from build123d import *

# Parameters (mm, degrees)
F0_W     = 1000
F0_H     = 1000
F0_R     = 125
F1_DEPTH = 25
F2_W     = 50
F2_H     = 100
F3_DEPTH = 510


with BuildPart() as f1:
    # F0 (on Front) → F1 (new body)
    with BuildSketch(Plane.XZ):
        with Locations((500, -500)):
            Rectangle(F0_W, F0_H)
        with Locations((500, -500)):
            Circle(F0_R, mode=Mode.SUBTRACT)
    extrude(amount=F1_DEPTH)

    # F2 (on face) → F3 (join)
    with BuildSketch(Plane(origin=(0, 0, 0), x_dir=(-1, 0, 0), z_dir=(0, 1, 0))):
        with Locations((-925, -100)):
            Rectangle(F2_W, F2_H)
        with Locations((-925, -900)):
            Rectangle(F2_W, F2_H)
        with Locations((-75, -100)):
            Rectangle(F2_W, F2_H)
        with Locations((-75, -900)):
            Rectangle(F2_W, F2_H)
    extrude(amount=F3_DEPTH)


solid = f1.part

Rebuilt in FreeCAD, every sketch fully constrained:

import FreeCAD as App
import Part
import Sketcher

V = App.Vector

doc = App.newDocument("Part")
body = doc.addObject("PartDesign::Body", "Body")

# Sketch on XZ plane
sketch1 = doc.addObject("Sketcher::SketchObject", "Sketch")
body.addObject(sketch1)
sketch1.AttachmentSupport = (doc.XZ_Plane, [""])
sketch1.MapMode = "FlatFace"
sketch1.addGeometry([
    Part.LineSegment(V(0, 0, 0), V(0, -1000, 0)),  # 0
    Part.LineSegment(V(0, -1000, 0), V(1000, -1000, 0)),  # 1
    Part.LineSegment(V(1000, -1000, 0), V(1000, 0, 0)),  # 2
    Part.LineSegment(V(1000, 0, 0), V(0, 0, 0)),  # 3
    Part.Circle(V(500, -500, 0), V(0, 0, 1), 125),  # 4
], False)
sketch1.addConstraint([
    Sketcher.Constraint("Coincident", 0, 2, 1, 1),
    Sketcher.Constraint("Coincident", 1, 2, 2, 1),
    Sketcher.Constraint("Coincident", 2, 2, 3, 1),
    Sketcher.Constraint("Coincident", 3, 2, 0, 1),
    Sketcher.Constraint("Vertical", 0),
    Sketcher.Constraint("Horizontal", 1),
    Sketcher.Constraint("Vertical", 2),
    Sketcher.Constraint("Horizontal", 3),
    Sketcher.Constraint("Coincident", 3, 2, -1, 1),
    Sketcher.Constraint("Equal", 3, 0),
    Sketcher.Constraint("Diameter", 4, 250.0),
    Sketcher.Constraint("DistanceX", 1, 1, 1, 2, 1000.0),
    Sketcher.Constraint("DistanceX", -1, 1, 4, 3, 500.0),
    Sketcher.Constraint("DistanceY", 4, 3, -1, 1, 500.0),
])
pad1 = doc.addObject("PartDesign::Pad", "Pad")
body.addObject(pad1)
pad1.Profile = sketch1
pad1.Length = 25

# Sketch on XZ plane
sketch2 = doc.addObject("Sketcher::SketchObject", "Sketch001")
body.addObject(sketch2)
sketch2.AttachmentSupport = (doc.XZ_Plane, [""])
sketch2.MapMode = "FlatFace"
sketch2.addGeometry([
    Part.LineSegment(V(950, -50, 0), V(950, -150, 0)),  # 0
    Part.LineSegment(V(950, -150, 0), V(900, -150, 0)),  # 1
    Part.LineSegment(V(900, -150, 0), V(900, -50, 0)),  # 2
    Part.LineSegment(V(900, -50, 0), V(950, -50, 0)),  # 3
    Part.LineSegment(V(950, -850, 0), V(950, -950, 0)),  # 4
    Part.LineSegment(V(950, -950, 0), V(900, -950, 0)),  # 5
    Part.LineSegment(V(900, -950, 0), V(900, -850, 0)),  # 6
    Part.LineSegment(V(900, -850, 0), V(950, -850, 0)),  # 7
    Part.LineSegment(V(100, -50, 0), V(100, -150, 0)),  # 8
    Part.LineSegment(V(100, -150, 0), V(50, -150, 0)),  # 9
    Part.LineSegment(V(50, -150, 0), V(50, -50, 0)),  # 10
    Part.LineSegment(V(50, -50, 0), V(100, -50, 0)),  # 11
    Part.LineSegment(V(100, -850, 0), V(100, -950, 0)),  # 12
    Part.LineSegment(V(100, -950, 0), V(50, -950, 0)),  # 13
    Part.LineSegment(V(50, -950, 0), V(50, -850, 0)),  # 14
    Part.LineSegment(V(50, -850, 0), V(100, -850, 0)),  # 15
], False)
sketch2.addConstraint([
    Sketcher.Constraint("Coincident", 0, 2, 1, 1),
    Sketcher.Constraint("Coincident", 1, 2, 2, 1),
    Sketcher.Constraint("Coincident", 2, 2, 3, 1),
    Sketcher.Constraint("Coincident", 3, 2, 0, 1),
    Sketcher.Constraint("Coincident", 4, 2, 5, 1),
    Sketcher.Constraint("Coincident", 5, 2, 6, 1),
    Sketcher.Constraint("Coincident", 6, 2, 7, 1),
    Sketcher.Constraint("Coincident", 7, 2, 4, 1),
    Sketcher.Constraint("Coincident", 8, 2, 9, 1),
    Sketcher.Constraint("Coincident", 9, 2, 10, 1),
    Sketcher.Constraint("Coincident", 10, 2, 11, 1),
    Sketcher.Constraint("Coincident", 11, 2, 8, 1),
    Sketcher.Constraint("Coincident", 12, 2, 13, 1),
    Sketcher.Constraint("Coincident", 13, 2, 14, 1),
    Sketcher.Constraint("Coincident", 14, 2, 15, 1),
    Sketcher.Constraint("Coincident", 15, 2, 12, 1),
    Sketcher.Constraint("Vertical", 0),
    Sketcher.Constraint("Horizontal", 1),
    Sketcher.Constraint("Vertical", 2),
    Sketcher.Constraint("Horizontal", 3),
    Sketcher.Constraint("Vertical", 4),
    Sketcher.Constraint("Horizontal", 5),
    Sketcher.Constraint("Vertical", 6),
    Sketcher.Constraint("Horizontal", 7),
    Sketcher.Constraint("Vertical", 8),
    Sketcher.Constraint("Horizontal", 9),
    Sketcher.Constraint("Vertical", 10),
    Sketcher.Constraint("Horizontal", 11),
    Sketcher.Constraint("Vertical", 12),
    Sketcher.Constraint("Horizontal", 13),
    Sketcher.Constraint("Vertical", 14),
    Sketcher.Constraint("Horizontal", 15),
    Sketcher.Constraint("Horizontal", 1, 2, 8, 2),
    Sketcher.Constraint("Horizontal", 3, 2, 10, 2),
    Sketcher.Constraint("Horizontal", 5, 2, 12, 2),
    Sketcher.Constraint("Horizontal", 7, 2, 14, 2),
    Sketcher.Constraint("Vertical", 3, 2, 4, 2),
    Sketcher.Constraint("Vertical", 2, 2, 5, 2),
    Sketcher.Constraint("Vertical", 11, 2, 12, 2),
    Sketcher.Constraint("Vertical", 10, 2, 13, 2),
    Sketcher.Constraint("Equal", 7, 9),
    Sketcher.Constraint("Equal", 2, 4),
    Sketcher.Constraint("DistanceX", 1, 2, 1, 1, 50.0),
    Sketcher.Constraint("DistanceY", 0, 2, 0, 1, 100.0),
    Sketcher.Constraint("DistanceX", -1, 1, 0, 2, 950.0),
    Sketcher.Constraint("DistanceY", 0, 2, -1, 1, 150.0),
    Sketcher.Constraint("DistanceY", 4, 2, -1, 1, 950.0),
    Sketcher.Constraint("DistanceX", -1, 1, 8, 2, 100.0),
])
pad2 = doc.addObject("PartDesign::Pad", "Pad001")
body.addObject(pad2)
pad2.Profile = sketch2
pad2.Length = 510
pad2.Reversed = True

doc.recompute()
